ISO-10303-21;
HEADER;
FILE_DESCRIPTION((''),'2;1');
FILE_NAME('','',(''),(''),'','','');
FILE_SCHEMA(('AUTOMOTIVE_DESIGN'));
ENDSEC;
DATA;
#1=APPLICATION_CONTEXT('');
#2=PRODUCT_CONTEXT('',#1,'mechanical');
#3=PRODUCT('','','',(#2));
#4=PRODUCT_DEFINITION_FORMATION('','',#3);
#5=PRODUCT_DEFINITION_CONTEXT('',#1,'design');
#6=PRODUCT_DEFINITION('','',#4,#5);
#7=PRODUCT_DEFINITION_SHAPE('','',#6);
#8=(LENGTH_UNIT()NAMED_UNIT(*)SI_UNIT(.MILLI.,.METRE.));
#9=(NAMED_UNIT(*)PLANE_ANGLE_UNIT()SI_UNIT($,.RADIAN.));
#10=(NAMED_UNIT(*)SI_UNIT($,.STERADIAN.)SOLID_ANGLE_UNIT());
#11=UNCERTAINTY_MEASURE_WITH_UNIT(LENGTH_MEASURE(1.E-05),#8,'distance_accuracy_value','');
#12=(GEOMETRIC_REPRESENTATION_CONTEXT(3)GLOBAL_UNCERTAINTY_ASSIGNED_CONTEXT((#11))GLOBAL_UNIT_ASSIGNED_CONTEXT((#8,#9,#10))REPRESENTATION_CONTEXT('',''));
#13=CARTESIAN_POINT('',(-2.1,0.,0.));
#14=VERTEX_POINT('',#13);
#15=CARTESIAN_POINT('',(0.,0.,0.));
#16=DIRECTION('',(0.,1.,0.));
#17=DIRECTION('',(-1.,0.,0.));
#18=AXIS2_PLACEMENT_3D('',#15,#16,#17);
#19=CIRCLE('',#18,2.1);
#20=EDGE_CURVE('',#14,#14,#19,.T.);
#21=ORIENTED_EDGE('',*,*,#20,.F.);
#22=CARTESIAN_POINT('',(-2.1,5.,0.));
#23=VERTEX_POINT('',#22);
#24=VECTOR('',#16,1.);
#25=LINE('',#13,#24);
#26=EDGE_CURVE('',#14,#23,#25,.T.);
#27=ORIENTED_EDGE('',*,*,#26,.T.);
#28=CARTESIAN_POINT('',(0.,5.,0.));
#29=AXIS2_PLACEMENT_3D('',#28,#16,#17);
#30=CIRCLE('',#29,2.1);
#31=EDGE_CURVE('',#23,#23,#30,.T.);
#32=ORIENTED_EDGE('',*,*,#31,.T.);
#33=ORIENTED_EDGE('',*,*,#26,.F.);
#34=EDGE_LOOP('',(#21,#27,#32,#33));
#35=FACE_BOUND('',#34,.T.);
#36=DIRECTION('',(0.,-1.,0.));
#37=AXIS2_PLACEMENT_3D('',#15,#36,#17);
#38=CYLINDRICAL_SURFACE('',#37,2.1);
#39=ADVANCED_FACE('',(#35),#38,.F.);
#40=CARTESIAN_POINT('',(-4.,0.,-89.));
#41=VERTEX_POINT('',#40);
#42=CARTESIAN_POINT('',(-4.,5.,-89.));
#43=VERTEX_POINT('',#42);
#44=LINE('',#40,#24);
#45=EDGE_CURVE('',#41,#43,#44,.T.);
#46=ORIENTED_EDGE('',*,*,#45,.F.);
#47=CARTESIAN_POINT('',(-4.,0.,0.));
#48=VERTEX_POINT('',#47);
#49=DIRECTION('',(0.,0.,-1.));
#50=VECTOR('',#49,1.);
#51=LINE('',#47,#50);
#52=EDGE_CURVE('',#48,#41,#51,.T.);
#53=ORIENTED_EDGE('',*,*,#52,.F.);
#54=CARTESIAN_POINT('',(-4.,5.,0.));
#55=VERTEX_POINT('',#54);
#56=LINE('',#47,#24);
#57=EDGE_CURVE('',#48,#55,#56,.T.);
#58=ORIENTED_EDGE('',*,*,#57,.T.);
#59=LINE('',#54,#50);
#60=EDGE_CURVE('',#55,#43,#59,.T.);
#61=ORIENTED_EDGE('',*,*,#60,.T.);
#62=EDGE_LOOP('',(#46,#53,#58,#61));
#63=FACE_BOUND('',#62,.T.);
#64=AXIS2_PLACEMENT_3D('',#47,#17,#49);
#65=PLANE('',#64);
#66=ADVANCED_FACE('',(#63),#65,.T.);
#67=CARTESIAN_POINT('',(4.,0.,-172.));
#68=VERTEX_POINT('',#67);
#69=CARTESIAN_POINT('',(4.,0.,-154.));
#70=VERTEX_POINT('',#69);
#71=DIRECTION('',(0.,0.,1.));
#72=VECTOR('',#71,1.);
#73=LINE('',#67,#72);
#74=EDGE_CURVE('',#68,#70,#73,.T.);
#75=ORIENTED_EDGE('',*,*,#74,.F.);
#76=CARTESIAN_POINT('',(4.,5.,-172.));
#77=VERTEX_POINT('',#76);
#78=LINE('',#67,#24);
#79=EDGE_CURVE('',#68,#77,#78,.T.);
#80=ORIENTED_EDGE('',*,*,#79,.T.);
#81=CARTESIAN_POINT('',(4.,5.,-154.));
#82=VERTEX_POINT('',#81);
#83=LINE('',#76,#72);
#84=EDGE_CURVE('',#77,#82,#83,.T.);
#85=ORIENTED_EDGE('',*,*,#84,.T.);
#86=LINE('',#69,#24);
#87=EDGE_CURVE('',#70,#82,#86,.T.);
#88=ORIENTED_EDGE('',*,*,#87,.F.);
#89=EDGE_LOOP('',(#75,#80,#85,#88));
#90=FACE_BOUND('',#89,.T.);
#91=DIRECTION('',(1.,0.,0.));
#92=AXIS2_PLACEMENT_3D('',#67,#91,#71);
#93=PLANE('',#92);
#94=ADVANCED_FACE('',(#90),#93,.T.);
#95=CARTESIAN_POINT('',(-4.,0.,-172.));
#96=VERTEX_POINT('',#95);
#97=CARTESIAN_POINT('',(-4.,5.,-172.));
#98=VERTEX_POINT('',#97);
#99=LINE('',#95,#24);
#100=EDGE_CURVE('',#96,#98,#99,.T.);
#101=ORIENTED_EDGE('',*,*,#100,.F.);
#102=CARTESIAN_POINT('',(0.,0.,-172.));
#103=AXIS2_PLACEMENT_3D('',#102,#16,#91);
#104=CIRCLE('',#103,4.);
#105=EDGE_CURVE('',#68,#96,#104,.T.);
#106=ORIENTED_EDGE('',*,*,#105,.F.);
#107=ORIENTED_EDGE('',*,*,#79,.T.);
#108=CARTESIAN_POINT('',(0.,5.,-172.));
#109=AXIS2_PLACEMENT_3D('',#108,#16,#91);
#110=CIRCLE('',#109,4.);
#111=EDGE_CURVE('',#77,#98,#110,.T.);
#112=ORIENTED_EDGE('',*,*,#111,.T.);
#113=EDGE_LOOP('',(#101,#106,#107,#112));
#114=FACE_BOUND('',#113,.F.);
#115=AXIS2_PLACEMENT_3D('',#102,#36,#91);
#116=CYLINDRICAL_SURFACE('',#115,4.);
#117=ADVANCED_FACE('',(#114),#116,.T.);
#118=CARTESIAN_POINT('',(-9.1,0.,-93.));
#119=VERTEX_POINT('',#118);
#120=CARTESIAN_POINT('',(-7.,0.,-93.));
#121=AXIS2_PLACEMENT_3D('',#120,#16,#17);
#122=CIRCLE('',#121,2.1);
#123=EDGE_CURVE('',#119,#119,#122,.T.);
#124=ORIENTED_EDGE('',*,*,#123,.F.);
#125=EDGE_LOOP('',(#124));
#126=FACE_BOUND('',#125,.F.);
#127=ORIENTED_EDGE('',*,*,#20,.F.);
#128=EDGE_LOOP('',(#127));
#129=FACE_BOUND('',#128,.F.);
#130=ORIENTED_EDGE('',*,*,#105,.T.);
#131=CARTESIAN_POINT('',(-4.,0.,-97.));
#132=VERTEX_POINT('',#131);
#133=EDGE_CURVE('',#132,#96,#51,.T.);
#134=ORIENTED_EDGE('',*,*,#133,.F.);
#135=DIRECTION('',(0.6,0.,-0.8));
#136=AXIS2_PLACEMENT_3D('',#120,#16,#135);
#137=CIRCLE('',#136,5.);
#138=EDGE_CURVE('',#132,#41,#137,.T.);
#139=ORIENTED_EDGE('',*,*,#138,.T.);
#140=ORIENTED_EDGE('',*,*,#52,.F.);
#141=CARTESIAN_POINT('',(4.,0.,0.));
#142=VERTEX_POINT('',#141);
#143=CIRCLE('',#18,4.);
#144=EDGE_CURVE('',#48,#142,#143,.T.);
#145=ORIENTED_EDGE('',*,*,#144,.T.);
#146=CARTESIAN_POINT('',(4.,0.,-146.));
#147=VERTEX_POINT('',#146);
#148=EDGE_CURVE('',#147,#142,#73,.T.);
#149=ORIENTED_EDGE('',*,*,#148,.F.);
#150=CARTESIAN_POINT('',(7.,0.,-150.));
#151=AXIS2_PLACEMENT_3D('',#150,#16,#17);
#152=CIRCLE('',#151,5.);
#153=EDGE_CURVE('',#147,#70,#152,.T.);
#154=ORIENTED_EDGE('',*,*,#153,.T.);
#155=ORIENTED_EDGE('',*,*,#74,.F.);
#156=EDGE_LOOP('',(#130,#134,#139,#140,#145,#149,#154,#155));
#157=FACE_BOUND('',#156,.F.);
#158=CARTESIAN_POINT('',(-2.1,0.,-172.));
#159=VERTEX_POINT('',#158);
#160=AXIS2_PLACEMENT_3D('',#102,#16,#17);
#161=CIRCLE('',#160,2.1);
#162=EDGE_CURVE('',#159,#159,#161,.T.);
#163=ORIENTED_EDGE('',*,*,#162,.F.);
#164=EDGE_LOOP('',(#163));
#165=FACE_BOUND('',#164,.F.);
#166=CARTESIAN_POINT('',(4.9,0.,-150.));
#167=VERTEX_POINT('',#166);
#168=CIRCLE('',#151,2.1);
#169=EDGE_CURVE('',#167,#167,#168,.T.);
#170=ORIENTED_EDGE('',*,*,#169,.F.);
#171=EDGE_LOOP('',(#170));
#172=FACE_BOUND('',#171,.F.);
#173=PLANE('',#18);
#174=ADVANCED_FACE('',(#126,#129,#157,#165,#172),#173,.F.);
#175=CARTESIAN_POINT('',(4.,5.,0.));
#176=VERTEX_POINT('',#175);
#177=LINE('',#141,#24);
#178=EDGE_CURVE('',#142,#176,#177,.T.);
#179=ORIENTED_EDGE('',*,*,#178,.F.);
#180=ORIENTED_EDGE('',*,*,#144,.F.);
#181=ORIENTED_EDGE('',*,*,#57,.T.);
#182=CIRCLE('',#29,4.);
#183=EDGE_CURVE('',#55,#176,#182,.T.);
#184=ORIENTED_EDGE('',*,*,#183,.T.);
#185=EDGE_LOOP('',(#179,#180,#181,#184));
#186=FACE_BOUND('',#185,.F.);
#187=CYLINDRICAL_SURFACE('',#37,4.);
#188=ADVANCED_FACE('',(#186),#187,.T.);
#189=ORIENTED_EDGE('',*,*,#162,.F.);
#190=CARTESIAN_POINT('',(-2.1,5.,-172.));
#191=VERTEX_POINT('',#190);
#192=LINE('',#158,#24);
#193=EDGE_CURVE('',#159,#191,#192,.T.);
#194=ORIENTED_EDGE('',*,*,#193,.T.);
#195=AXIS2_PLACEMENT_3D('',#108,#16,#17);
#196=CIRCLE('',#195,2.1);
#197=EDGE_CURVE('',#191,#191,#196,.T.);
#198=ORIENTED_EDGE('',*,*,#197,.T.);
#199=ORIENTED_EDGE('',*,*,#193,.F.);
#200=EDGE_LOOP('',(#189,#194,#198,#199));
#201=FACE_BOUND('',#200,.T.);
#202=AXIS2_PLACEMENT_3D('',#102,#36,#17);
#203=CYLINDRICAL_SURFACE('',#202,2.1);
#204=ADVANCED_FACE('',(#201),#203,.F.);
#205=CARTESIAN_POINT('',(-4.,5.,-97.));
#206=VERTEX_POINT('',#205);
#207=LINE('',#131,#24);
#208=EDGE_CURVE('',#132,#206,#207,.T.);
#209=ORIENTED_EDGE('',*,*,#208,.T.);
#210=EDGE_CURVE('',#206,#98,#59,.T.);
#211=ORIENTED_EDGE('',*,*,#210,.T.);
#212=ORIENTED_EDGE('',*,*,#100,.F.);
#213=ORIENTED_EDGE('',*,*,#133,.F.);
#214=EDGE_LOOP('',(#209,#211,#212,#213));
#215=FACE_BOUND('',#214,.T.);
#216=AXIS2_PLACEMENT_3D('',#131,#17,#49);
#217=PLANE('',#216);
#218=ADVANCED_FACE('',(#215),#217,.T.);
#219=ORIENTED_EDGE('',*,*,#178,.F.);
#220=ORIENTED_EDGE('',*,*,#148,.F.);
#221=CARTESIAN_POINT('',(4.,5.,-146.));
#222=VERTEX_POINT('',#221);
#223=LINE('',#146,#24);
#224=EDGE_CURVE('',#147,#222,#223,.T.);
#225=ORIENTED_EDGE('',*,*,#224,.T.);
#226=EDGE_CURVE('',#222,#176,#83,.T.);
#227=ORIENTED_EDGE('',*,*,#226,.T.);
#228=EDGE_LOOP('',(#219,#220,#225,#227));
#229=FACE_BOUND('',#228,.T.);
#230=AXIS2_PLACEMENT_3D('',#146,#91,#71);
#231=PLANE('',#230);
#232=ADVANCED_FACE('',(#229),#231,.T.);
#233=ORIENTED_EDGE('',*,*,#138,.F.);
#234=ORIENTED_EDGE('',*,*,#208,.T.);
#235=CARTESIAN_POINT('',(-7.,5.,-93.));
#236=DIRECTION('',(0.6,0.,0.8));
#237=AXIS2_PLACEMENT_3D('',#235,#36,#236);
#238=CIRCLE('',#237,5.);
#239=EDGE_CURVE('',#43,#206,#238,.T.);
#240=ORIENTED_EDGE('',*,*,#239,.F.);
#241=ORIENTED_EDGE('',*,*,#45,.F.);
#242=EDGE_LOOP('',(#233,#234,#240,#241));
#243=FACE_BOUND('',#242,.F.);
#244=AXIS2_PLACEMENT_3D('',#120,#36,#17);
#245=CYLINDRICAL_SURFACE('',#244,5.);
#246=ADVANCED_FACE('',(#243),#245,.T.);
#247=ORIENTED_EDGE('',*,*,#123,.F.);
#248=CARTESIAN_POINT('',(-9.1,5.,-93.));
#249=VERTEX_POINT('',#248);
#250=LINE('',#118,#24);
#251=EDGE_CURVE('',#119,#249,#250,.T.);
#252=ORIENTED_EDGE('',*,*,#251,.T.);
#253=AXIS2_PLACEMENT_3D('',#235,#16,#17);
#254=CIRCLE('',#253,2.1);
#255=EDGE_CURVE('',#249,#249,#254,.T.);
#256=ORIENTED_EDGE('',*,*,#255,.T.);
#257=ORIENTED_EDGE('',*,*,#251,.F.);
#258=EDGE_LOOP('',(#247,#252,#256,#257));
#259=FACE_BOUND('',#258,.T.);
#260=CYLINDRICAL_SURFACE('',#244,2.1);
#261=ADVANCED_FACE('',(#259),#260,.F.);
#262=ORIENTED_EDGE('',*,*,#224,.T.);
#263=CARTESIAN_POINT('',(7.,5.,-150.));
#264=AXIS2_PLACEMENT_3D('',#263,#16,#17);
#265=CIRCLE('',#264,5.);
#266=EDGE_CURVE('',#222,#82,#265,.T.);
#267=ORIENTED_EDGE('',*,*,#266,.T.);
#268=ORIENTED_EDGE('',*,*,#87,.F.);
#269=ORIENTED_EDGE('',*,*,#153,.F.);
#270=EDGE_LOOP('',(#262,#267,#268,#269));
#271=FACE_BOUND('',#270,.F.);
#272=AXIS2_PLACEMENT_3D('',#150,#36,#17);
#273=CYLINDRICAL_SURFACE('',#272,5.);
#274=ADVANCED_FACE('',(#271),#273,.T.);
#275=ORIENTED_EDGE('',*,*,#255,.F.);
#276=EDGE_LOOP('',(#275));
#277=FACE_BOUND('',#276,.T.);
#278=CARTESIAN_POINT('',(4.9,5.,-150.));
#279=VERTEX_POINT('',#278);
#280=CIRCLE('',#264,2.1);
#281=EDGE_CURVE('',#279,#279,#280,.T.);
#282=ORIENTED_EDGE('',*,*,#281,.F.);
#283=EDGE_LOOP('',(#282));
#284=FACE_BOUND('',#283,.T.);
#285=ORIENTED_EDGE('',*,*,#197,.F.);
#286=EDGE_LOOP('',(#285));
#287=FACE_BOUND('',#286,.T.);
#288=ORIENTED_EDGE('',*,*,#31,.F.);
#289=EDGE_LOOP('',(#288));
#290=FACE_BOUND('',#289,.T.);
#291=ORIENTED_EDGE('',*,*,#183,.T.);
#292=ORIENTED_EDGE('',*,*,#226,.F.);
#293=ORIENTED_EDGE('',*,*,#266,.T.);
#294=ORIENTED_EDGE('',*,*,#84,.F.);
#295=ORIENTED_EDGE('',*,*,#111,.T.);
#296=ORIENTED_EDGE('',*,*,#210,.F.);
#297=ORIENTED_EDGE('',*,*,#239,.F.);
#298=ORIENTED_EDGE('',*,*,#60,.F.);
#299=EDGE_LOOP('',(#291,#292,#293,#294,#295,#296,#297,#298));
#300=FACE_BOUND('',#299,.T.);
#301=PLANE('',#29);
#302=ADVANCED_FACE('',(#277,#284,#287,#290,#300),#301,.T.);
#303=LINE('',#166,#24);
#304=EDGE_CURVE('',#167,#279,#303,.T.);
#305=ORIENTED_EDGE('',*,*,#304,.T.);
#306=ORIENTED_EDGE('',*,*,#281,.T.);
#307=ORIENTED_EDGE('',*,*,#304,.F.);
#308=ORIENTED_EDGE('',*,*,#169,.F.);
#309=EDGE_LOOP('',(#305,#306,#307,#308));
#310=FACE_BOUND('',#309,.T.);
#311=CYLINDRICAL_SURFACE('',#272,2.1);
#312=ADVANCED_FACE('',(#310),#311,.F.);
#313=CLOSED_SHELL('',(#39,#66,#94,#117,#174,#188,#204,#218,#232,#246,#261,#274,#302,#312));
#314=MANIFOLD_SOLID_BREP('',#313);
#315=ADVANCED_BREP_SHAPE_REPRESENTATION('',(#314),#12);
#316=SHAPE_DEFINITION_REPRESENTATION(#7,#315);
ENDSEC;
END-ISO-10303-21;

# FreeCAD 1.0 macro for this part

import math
import FreeCAD as App
import Part
import Sketcher

V = App.Vector
Q = App.Units.Quantity

doc = App.newDocument("Part")
params = doc.addObject("Spreadsheet::Sheet", "Params")
for row, (alias, value) in enumerate([
    ("sketch1_radius", "4 mm"),
    ("sketch1_radius2", "5 mm"),
    ("sketch1_diameter", "4.2 mm"),
    ("pad1_length", "5 mm"),
], start=1):
    params.set(f"A{row}", alias)
    params.set(f"B{row}", "=" + value)
    params.setAlias(f"B{row}", alias)

body = doc.addObject("PartDesign::Body", "Body")

# Sketch on XZ plane
sketch1 = body.newObject("Sketcher::SketchObject", "Sketch")
sketch1.AttachmentSupport = (doc.getObject("XZ_Plane"), [""])
sketch1.MapMode = "FlatFace"
sketch1.addGeometry(Part.LineSegment(V(-4, -89, 0), V(-4, 0, 0)), False)
sketch1.addGeometry(Part.ArcOfCircle(Part.Circle(V(0, 0, 0), V(0, 0, 1), 4), math.radians(0), math.radians(180)), False)
sketch1.addGeometry(Part.LineSegment(V(4, 0, 0), V(4, -146, 0)), False)
sketch1.addGeometry(Part.ArcOfCircle(Part.Circle(V(7, -150, 0), V(0, 0, 1), 5), math.radians(-127), math.radians(127)), False)
sketch1.addGeometry(Part.LineSegment(V(4, -154, 0), V(4, -172, 0)), False)
sketch1.addGeometry(Part.ArcOfCircle(Part.Circle(V(0, -172, 0), V(0, 0, 1), 4), math.radians(180), math.radians(360)), False)
sketch1.addGeometry(Part.LineSegment(V(-4, -172, 0), V(-4, -97, 0)), False)
sketch1.addGeometry(Part.ArcOfCircle(Part.Circle(V(-7, -93, 0), V(0, 0, 1), 5), math.radians(53), math.radians(307)), False)
sketch1.addGeometry(Part.Circle(V(0, -172, 0), V(0, 0, 1), 2.1), False)
sketch1.addGeometry(Part.Circle(V(0, 0, 0), V(0, 0, 1), 2.1), False)
sketch1.addGeometry(Part.Circle(V(-7, -93, 0), V(0, 0, 1), 2.1), False)
sketch1.addGeometry(Part.Circle(V(7, -150, 0), V(0, 0, 1), 2.1), False)
sketch1.addConstraint(Sketcher.Constraint("Tangent", 0, 2, 1, 2))
sketch1.addConstraint(Sketcher.Constraint("Tangent", 1, 1, 2, 1))
sketch1.addConstraint(Sketcher.Constraint("Coincident", 2, 2, 3, 2))
sketch1.addConstraint(Sketcher.Constraint("Coincident", 3, 1, 4, 1))
sketch1.addConstraint(Sketcher.Constraint("Tangent", 4, 2, 5, 2))
sketch1.addConstraint(Sketcher.Constraint("Tangent", 5, 1, 6, 1))
sketch1.addConstraint(Sketcher.Constraint("Coincident", 6, 2, 7, 2))
sketch1.addConstraint(Sketcher.Constraint("Coincident", 7, 1, 0, 1))
sketch1.addConstraint(Sketcher.Constraint("Vertical", 0))
sketch1.addConstraint(Sketcher.Constraint("Vertical", 2))
sketch1.addConstraint(Sketcher.Constraint("Vertical", 4))
sketch1.addConstraint(Sketcher.Constraint("Vertical", 6))
sketch1.addConstraint(Sketcher.Constraint("Coincident", 1, 3, -1, 1))
sketch1.addConstraint(Sketcher.Constraint("Coincident", 9, 3, -1, 1))
sketch1.addConstraint(Sketcher.Constraint("Coincident", 8, 3, 5, 3))
sketch1.addConstraint(Sketcher.Constraint("Coincident", 10, 3, 7, 3))
sketch1.addConstraint(Sketcher.Constraint("Coincident", 11, 3, 3, 3))
sketch1.addConstraint(Sketcher.Constraint("Equal", 1, 5))
sketch1.addConstraint(Sketcher.Constraint("Equal", 3, 7))
sketch1.addConstraint(Sketcher.Constraint("Equal", 8, 9))
sketch1.addConstraint(Sketcher.Constraint("Equal", 9, 10))
sketch1.addConstraint(Sketcher.Constraint("Equal", 10, 11))
sketch1.addConstraint(Sketcher.Constraint("PointOnObject", 5, 3, -2))
sketch1.addConstraint(Sketcher.Constraint("Radius", 1, Q("4 mm")))
sketch1.addConstraint(Sketcher.Constraint("Radius", 3, Q("5 mm")))
sketch1.addConstraint(Sketcher.Constraint("Diameter", 8, Q("4.2 mm")))
sketch1.addConstraint(Sketcher.Constraint("DistanceY", 3, 3, -1, 1, Q("150 mm")))
sketch1.addConstraint(Sketcher.Constraint("DistanceY", 5, 3, -1, 1, Q("172 mm")))
sketch1.addConstraint(Sketcher.Constraint("DistanceY", 7, 3, -1, 1, Q("93 mm")))
sketch1.addConstraint(Sketcher.Constraint("DistanceX", 7, 3, 0, 2, Q("3 mm")))
sketch1.addConstraint(Sketcher.Constraint("DistanceX", 2, 2, 3, 3, Q("3 mm")))
sketch1.setExpression("Constraints[23]", "Params.sketch1_radius")
sketch1.setExpression("Constraints[24]", "Params.sketch1_radius2")
sketch1.setExpression("Constraints[25]", "Params.sketch1_diameter")
pad1 = body.newObject("PartDesign::Pad", "Pad")
pad1.Profile = sketch1
pad1.setExpression("Length", "Params.pad1_length")
pad1.Reversed = True

doc.recompute()
